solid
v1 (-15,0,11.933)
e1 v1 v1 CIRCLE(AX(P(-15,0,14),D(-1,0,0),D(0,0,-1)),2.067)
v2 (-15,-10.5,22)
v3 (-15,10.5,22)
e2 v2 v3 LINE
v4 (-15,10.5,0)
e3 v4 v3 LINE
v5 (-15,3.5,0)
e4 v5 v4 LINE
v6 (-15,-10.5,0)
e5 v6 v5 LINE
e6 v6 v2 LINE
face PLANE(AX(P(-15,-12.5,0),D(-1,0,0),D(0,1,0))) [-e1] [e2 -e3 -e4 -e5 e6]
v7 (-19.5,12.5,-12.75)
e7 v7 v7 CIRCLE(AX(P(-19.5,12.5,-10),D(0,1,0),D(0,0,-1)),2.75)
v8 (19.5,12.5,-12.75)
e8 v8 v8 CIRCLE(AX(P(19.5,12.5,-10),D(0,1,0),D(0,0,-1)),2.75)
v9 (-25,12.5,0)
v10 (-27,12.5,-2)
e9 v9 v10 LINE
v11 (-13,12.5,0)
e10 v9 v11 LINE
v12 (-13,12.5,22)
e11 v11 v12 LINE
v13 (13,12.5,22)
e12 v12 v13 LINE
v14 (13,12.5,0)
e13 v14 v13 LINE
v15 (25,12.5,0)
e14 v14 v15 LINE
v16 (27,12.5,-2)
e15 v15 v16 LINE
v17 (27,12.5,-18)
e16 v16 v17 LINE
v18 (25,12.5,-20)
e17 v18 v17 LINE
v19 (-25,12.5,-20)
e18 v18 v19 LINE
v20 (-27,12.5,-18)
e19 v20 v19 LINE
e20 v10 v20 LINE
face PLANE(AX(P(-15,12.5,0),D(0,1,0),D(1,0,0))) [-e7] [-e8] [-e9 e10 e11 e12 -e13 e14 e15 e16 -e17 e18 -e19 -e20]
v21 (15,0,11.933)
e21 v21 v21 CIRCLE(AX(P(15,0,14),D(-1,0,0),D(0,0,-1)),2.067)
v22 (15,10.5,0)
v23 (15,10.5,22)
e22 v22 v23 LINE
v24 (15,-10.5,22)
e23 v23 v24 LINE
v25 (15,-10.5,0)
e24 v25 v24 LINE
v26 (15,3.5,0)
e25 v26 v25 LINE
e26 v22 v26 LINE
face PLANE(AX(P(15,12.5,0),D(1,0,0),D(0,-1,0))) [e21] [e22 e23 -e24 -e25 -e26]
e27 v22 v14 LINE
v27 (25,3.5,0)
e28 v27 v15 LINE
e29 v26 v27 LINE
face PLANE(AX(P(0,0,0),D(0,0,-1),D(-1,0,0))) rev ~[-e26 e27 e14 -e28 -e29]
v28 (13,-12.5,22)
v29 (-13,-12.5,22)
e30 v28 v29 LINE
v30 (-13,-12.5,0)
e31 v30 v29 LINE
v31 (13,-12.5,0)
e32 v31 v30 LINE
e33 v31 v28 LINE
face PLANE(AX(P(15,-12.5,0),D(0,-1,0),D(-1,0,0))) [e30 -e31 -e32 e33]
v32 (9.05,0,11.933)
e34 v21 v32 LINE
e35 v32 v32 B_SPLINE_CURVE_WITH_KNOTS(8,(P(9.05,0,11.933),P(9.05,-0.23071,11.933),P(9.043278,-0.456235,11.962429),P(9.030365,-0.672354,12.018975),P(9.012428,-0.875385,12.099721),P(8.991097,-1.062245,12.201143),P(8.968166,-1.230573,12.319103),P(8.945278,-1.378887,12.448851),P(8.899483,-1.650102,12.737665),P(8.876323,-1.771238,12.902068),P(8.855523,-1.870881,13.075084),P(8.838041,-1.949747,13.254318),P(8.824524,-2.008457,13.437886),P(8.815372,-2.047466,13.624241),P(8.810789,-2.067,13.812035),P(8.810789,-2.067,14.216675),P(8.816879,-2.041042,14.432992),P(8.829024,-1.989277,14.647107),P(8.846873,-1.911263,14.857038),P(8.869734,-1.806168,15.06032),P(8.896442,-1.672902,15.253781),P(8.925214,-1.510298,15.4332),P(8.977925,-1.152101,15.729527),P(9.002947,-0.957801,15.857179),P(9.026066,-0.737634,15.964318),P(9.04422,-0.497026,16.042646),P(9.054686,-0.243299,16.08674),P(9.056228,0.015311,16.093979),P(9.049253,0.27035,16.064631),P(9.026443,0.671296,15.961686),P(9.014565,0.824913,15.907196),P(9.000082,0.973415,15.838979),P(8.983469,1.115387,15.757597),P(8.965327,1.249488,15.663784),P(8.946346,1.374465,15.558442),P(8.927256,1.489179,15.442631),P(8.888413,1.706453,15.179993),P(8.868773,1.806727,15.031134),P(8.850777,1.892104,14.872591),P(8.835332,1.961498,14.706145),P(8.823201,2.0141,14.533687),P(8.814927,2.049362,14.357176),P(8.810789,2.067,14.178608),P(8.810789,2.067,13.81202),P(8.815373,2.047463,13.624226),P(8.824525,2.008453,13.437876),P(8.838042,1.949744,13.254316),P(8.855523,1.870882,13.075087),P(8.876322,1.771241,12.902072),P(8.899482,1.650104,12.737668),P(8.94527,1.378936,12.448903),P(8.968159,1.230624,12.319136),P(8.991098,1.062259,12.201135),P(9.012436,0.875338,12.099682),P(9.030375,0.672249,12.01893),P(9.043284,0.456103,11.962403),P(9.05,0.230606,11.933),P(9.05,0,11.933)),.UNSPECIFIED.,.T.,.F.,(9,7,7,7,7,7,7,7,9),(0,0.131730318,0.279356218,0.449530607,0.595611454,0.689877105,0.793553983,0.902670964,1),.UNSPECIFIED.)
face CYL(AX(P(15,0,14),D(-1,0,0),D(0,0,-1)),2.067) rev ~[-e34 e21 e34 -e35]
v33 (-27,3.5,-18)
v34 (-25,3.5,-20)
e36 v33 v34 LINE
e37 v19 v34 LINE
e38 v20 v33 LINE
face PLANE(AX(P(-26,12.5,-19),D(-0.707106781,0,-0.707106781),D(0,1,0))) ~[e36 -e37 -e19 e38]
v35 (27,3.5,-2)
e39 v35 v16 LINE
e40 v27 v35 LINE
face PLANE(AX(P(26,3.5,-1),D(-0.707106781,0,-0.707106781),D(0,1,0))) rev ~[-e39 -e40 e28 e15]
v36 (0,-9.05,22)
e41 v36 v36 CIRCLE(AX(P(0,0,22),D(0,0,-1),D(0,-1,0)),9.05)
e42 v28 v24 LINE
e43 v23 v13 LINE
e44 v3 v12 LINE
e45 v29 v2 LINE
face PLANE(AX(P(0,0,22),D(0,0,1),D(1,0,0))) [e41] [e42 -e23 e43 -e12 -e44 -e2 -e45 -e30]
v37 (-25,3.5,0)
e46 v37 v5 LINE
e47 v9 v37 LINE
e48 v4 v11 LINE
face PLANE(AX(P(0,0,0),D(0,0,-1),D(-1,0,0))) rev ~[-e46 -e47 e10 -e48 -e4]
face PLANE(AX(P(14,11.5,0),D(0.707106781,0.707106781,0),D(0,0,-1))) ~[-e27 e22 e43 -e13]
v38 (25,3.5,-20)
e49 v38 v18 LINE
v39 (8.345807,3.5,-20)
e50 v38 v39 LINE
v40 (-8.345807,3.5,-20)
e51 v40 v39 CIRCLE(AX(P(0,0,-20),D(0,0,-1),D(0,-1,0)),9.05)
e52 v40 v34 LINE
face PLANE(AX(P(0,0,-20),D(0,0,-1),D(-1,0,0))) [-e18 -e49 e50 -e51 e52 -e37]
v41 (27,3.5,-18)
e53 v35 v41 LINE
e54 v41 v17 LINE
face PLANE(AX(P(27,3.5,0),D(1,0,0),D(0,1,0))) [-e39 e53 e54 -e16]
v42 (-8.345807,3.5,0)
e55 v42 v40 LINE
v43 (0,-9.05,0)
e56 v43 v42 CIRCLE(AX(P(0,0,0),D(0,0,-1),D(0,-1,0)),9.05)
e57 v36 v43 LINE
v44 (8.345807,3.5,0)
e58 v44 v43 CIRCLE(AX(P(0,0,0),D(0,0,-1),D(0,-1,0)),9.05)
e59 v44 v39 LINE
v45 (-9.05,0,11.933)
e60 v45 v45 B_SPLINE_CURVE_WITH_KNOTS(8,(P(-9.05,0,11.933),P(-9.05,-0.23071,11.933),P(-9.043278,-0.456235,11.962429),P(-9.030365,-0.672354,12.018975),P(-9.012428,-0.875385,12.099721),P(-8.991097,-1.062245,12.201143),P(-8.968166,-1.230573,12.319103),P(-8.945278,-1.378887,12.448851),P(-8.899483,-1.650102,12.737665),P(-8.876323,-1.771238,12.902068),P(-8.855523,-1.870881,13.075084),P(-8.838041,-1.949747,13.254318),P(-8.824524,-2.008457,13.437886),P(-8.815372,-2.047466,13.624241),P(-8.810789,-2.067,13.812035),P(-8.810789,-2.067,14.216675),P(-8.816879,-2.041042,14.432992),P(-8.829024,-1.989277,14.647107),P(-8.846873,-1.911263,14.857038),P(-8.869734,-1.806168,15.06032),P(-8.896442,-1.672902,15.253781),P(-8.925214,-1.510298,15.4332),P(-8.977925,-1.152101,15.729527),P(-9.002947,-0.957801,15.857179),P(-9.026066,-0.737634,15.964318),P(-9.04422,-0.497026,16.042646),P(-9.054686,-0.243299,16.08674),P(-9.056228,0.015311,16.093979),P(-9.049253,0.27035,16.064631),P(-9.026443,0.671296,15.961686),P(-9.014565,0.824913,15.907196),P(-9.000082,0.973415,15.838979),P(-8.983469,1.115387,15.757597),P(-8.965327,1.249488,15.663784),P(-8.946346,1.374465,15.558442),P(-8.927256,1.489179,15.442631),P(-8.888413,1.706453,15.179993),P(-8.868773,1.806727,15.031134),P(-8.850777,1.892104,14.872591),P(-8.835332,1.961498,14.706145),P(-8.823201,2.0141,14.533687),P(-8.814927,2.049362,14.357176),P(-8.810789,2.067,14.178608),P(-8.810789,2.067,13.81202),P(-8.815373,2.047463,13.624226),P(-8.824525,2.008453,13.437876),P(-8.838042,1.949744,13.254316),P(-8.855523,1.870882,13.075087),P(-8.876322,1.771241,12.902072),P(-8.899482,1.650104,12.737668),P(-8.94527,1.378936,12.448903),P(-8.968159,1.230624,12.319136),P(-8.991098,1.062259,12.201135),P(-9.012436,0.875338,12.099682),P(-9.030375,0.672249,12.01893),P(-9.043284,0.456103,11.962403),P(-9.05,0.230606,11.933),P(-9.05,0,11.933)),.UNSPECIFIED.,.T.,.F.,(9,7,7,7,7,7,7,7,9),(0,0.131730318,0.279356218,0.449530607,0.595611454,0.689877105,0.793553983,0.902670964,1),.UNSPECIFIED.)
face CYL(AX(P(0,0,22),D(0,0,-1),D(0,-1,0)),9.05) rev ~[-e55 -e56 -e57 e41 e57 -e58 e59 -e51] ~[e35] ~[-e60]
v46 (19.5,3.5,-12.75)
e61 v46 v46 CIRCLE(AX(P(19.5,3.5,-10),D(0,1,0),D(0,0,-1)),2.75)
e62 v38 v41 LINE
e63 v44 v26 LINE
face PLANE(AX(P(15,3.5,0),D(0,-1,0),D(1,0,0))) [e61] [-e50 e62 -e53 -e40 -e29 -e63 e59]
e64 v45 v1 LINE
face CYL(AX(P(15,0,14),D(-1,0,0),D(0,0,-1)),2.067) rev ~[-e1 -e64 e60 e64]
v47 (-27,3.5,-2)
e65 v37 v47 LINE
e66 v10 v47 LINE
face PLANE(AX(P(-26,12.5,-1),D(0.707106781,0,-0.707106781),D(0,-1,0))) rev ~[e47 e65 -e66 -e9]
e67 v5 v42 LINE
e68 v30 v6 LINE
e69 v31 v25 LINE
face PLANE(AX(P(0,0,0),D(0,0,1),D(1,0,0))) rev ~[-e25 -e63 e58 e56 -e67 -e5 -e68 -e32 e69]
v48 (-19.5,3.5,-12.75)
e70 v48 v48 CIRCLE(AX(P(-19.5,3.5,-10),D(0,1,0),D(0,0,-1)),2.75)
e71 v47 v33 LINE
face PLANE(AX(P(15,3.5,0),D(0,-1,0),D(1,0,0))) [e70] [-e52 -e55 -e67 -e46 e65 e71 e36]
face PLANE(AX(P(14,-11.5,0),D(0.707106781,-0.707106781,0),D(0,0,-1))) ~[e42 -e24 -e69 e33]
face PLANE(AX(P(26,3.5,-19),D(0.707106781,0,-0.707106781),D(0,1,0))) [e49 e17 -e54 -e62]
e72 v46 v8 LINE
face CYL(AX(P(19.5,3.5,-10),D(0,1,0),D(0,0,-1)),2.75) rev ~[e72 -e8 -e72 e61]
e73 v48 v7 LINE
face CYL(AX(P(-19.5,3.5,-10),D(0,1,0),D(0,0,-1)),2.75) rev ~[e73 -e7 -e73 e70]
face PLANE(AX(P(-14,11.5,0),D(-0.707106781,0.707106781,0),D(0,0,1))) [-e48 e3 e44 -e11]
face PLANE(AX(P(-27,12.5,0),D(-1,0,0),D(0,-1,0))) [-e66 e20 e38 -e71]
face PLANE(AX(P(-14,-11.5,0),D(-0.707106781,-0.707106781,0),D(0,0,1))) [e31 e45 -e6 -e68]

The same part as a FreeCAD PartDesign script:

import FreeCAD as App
import Part
import Sketcher


def edges_at(feature, points):
    """Names of the edges that pass closest to the given points."""
    edges = feature.Shape.Edges
    near = lambda p: min(range(len(edges)), key=lambda i: edges[i].distToShape(Part.Vertex(*p))[0])
    return sorted({f"Edge{near(p) + 1}" for p in points})

doc = App.newDocument("Part")
params = doc.addObject("Spreadsheet::Sheet", "Params")
for row, (alias, value) in enumerate([
    ("sketch1_width", "30 mm"),
    ("sketch1_height", "25 mm"),
    ("pad1_length", "22 mm"),
    ("sketch2_height", "9 mm"),
    ("sketch2_width", "54 mm"),
    ("pad2_length", "20 mm"),
    ("sketch3_diameter", "18.1 mm"),
    ("hole_diameter", "18.1 mm"),
    ("sketch4_diameter", "5.5 mm"),
    ("hole2_diameter", "5.5 mm"),
    ("chamfer_size", "2 mm"),
    ("hole3_diameter", "4.134 mm"),
], start=1):
    params.set(f"A{row}", alias)
    params.set(f"B{row}", "=" + value)
    params.setAlias(f"B{row}", alias)

body = doc.addObject("PartDesign::Body", "Body")

# Sketch on XY plane
sketch1 = body.newObject("Sketcher::SketchObject", "Sketch")
sketch1.AttachmentSupport = (doc.getObject("XY_Plane"), [""])
sketch1.MapMode = "FlatFace"
sketch1.addGeometry(Part.LineSegment(App.Vector(-15, -12, 0), App.Vector(15, -12, 0)), False)
sketch1.addGeometry(Part.LineSegment(App.Vector(15, -12, 0), App.Vector(15, 12, 0)), False)
sketch1.addGeometry(Part.LineSegment(App.Vector(15, 12, 0), App.Vector(-15, 12, 0)), False)
sketch1.addGeometry(Part.LineSegment(App.Vector(-15, 12, 0), App.Vector(-15, -12, 0)), False)
sketch1.addConstraint(Sketcher.Constraint("Coincident", 0, 2, 1, 1))
sketch1.addConstraint(Sketcher.Constraint("Coincident", 1, 2, 2, 1))
sketch1.addConstraint(Sketcher.Constraint("Coincident", 2, 2, 3, 1))
sketch1.addConstraint(Sketcher.Constraint("Coincident", 3, 2, 0, 1))
sketch1.addConstraint(Sketcher.Constraint("Horizontal", 0))
sketch1.addConstraint(Sketcher.Constraint("Vertical", 1))
sketch1.addConstraint(Sketcher.Constraint("Horizontal", 2))
sketch1.addConstraint(Sketcher.Constraint("Vertical", 3))
sketch1.addConstraint(Sketcher.Constraint("Symmetric", 0, 2, 2, 2, -1, 1))
sketch1.addConstraint(Sketcher.Constraint("DistanceX", 0, 1, 0, 2, 30.0))
sketch1.addConstraint(Sketcher.Constraint("DistanceY", 1, 1, 1, 2, 25.0))
sketch1.setExpression("Constraints[9]", "Params.sketch1_width")
sketch1.setExpression("Constraints[10]", "Params.sketch1_height")
pad1 = body.newObject("PartDesign::Pad", "Pad")
pad1.Profile = sketch1
pad1.setExpression("Length", "Params.pad1_length")

# Sketch on XY plane
sketch2 = body.newObject("Sketcher::SketchObject", "Sketch001")
sketch2.AttachmentSupport = (doc.getObject("XY_Plane"), [""])
sketch2.MapMode = "FlatFace"
sketch2.addGeometry(Part.LineSegment(App.Vector(27, 12, 0), App.Vector(27, 4, 0)), False)
sketch2.addGeometry(Part.LineSegment(App.Vector(27, 4, 0), App.Vector(-27, 4, 0)), False)
sketch2.addGeometry(Part.LineSegment(App.Vector(-27, 4, 0), App.Vector(-27, 12, 0)), False)
sketch2.addGeometry(Part.LineSegment(App.Vector(-27, 12, 0), App.Vector(27, 12, 0)), False)
sketch2.addConstraint(Sketcher.Constraint("Coincident", 0, 2, 1, 1))
sketch2.addConstraint(Sketcher.Constraint("Coincident", 1, 2, 2, 1))
sketch2.addConstraint(Sketcher.Constraint("Coincident", 2, 2, 3, 1))
sketch2.addConstraint(Sketcher.Constraint("Coincident", 3, 2, 0, 1))
sketch2.addConstraint(Sketcher.Constraint("Vertical", 0))
sketch2.addConstraint(Sketcher.Constraint("Horizontal", 1))
sketch2.addConstraint(Sketcher.Constraint("Vertical", 2))
sketch2.addConstraint(Sketcher.Constraint("Horizontal", 3))
sketch2.addConstraint(Sketcher.Constraint("DistanceY", 0, 2, 0, 1, 9.0))
sketch2.addConstraint(Sketcher.Constraint("DistanceX", 1, 2, 1, 1, 54.0))
sketch2.addConstraint(Sketcher.Constraint("DistanceX", -1, 1, 0, 2, 27.0))
sketch2.addConstraint(Sketcher.Constraint("DistanceY", -1, 1, 0, 2, 3.5))
sketch2.setExpression("Constraints[8]", "Params.sketch2_height")
sketch2.setExpression("Constraints[9]", "Params.sketch2_width")
pad2 = body.newObject("PartDesign::Pad", "Pad001")
pad2.Profile = sketch2
pad2.setExpression("Length", "Params.pad2_length")
pad2.Reversed = True

# Sketch on XY plane
sketch3 = body.newObject("Sketcher::SketchObject", "Sketch002")
sketch3.AttachmentSupport = (doc.getObject("XY_Plane"), [""])
sketch3.MapMode = "FlatFace"
sketch3.AttachmentOffset = App.Placement(App.Vector(0, 0, 22), App.Rotation())
sketch3.addGeometry(Part.Circle(App.Vector(0, 0, 0), App.Vector(0, 0, 1), 9), False)
sketch3.addConstraint(Sketcher.Constraint("Coincident", 0, 3, -1, 1))
sketch3.addConstraint(Sketcher.Constraint("Diameter", 0, 18.1))
sketch3.setExpression("Constraints[1]", "Params.sketch3_diameter")
doc.recompute()
hole = body.newObject("PartDesign::Hole", "Hole")
hole.Profile = sketch3
hole.ThreadType = "None"
hole.setExpression("Diameter", "Params.hole_diameter")
hole.DepthType = "ThroughAll"

# Sketch on XZ plane
sketch4 = body.newObject("Sketcher::SketchObject", "Sketch003")
sketch4.AttachmentSupport = (doc.getObject("XZ_Plane"), [""])
sketch4.MapMode = "FlatFace"
sketch4.AttachmentOffset = App.Placement(App.Vector(0, 0, -3.5), App.Rotation())
sketch4.addGeometry(Part.Circle(App.Vector(19.5, -10, 0), App.Vector(0, 0, 1), 2.8), False)
sketch4.addGeometry(Part.Circle(App.Vector(-19.5, -10, 0), App.Vector(0, 0, 1), 2.8), False)
sketch4.addConstraint(Sketcher.Constraint("Equal", 0, 1))
sketch4.addConstraint(Sketcher.Constraint("Symmetric", 0, 3, 1, 3, -2))
sketch4.addConstraint(Sketcher.Constraint("Diameter", 0, 5.5))
sketch4.addConstraint(Sketcher.Constraint("DistanceY", 0, 3, -1, 1, 10.0))
sketch4.addConstraint(Sketcher.Constraint("DistanceX", 1, 3, 0, 3, 39.0))
sketch4.setExpression("Constraints[2]", "Params.sketch4_diameter")
doc.recompute()
hole2 = body.newObject("PartDesign::Hole", "Hole001")
hole2.Profile = sketch4
hole2.ThreadType = "None"
hole2.setExpression("Diameter", "Params.hole2_diameter")
hole2.DepthType = "ThroughAll"
doc.recompute()

chamfer = body.newObject("PartDesign::Chamfer", "Chamfer")
chamfer.Base = (hole2, edges_at(hole2, [
    (15, 12.5, 11),
    (15, -12.5, 11),
    (-15, -12.5, 11),
    (-15, 12.5, 11),
    (27, 8, 0),
    (27, 8, -20),
    (-27, 8, -20),
    (-27, 8, 0),
]))
chamfer.setExpression("Size", "Params.chamfer_size")

# Sketch on YZ plane
sketch5 = body.newObject("Sketcher::SketchObject", "Sketch004")
sketch5.AttachmentSupport = (doc.getObject("YZ_Plane"), [""])
sketch5.MapMode = "FlatFace"
sketch5.AttachmentOffset = App.Placement(App.Vector(0, 0, 15), App.Rotation())
sketch5.addGeometry(Part.Circle(App.Vector(0, 14, 0), App.Vector(0, 0, 1), 2.1), False)
sketch5.addConstraint(Sketcher.Constraint("PointOnObject", 0, 3, -2))
sketch5.addConstraint(Sketcher.Constraint("Diameter", 0, 4.134))
sketch5.addConstraint(Sketcher.Constraint("DistanceY", -1, 1, 0, 3, 14.0))
doc.recompute()
hole3 = body.newObject("PartDesign::Hole", "Hole002")
hole3.Profile = sketch5
hole3.ThreadType = "None"
hole3.setExpression("Diameter", "Params.hole3_diameter")
hole3.DepthType = "ThroughAll"

doc.recompute()
